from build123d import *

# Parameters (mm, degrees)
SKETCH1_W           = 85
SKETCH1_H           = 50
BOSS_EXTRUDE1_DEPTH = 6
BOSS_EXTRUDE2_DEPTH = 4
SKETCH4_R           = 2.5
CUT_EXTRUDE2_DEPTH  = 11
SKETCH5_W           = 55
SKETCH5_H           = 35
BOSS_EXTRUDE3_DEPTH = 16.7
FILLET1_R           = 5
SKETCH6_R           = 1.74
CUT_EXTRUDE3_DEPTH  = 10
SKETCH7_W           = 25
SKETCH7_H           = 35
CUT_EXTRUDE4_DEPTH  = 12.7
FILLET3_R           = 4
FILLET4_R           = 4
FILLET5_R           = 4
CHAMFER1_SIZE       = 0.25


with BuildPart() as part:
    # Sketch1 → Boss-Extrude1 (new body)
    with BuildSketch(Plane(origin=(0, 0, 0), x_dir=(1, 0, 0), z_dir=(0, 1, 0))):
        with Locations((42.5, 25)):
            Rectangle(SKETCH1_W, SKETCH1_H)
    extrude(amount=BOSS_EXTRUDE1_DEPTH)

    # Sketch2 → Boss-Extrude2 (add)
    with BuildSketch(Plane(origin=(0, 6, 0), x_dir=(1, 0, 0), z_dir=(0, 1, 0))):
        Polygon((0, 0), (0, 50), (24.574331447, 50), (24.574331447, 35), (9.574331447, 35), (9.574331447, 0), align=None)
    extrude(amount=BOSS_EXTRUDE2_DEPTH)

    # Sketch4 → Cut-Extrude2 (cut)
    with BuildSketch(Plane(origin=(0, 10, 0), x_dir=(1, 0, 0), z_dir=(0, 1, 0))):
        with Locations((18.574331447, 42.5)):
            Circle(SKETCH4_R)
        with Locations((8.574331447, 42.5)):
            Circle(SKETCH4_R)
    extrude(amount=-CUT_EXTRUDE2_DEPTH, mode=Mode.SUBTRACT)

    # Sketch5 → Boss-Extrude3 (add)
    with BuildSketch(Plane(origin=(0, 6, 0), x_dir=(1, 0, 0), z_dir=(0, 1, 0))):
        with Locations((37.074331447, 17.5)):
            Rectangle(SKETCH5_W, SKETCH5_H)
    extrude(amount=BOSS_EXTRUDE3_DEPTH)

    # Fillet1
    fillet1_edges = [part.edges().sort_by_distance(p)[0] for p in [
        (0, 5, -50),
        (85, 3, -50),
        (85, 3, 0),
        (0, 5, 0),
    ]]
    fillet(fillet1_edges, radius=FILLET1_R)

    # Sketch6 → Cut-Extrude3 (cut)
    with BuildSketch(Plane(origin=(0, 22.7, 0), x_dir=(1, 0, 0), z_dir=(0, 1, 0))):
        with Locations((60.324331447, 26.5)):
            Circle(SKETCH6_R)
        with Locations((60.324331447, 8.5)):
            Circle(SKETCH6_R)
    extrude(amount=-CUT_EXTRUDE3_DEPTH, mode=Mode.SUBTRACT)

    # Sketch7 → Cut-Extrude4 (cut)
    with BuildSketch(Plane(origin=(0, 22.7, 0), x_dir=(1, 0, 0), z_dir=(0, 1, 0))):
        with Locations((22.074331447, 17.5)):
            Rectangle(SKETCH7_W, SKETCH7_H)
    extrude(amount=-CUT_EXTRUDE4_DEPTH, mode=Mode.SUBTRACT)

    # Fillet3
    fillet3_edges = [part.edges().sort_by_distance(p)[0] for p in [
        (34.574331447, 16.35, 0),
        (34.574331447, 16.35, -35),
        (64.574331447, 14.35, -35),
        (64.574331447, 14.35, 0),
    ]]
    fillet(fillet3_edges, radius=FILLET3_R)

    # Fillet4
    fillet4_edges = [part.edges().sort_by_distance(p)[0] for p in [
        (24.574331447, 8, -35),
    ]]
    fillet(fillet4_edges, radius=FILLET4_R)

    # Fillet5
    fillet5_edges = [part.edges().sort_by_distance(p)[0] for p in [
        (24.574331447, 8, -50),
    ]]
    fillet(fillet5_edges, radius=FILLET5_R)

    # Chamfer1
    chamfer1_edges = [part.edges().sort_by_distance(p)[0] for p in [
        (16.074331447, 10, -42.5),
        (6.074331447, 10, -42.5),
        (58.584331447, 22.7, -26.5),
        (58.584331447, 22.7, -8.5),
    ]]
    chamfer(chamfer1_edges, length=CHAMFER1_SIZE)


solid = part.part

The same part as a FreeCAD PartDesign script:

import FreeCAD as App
import Part
import Sketcher
from FreeCAD import Vector


def edges_at(feature, points):
    """Names of the edges that pass closest to the given points."""
    edges = feature.Shape.Edges
    near = lambda p: min(range(len(edges)), key=lambda i: edges[i].distToShape(Part.Vertex(*p))[0])
    return sorted({f"Edge{near(p) + 1}" for p in points})


def add_polygon(sketch, points):
    """Adds a closed chain of lines whose ends are joined by coincident constraints."""
    first, n = sketch.GeometryCount, len(points)
    for a, b in zip(points, points[1:] + points[:1]):
        sketch.addGeometry(Part.LineSegment(App.Vector(*a, 0), App.Vector(*b, 0)), False)
    for i in range(n):
        sketch.addConstraint(Sketcher.Constraint("Coincident", first + i, 2, first + (i + 1) % n, 1))

doc = App.newDocument("Part")
body = doc.addObject("PartDesign::Body", "Body")

# Sketch on XZ plane
sketch1 = body.newObject("Sketcher::SketchObject", "Sketch")
sketch1.AttachmentSupport = (doc.getObject("XZ_Plane"), [""])
sketch1.MapMode = "FlatFace"
add_polygon(sketch1, [(0, -50), (0, 0), (85, 0), (85, -50)])  # lines 0-3
sketch1.addConstraint([
    Sketcher.Constraint("Vertical", 0),
    Sketcher.Constraint("Horizontal", 1),
    Sketcher.Constraint("Vertical", 2),
    Sketcher.Constraint("Horizontal", 3),
    Sketcher.Constraint("Coincident", 0, 2, -1, 1),
    Sketcher.Constraint("DistanceX", 1, 1, 1, 2, 85.0),
    Sketcher.Constraint("DistanceY", 0, 1, 0, 2, 50.0),
])
pad1 = body.newObject("PartDesign::Pad", "Pad")
pad1.Profile = sketch1
pad1.Length = 6
pad1.Reversed = True

# Sketch on XZ plane
sketch2 = body.newObject("Sketcher::SketchObject", "Sketch001")
sketch2.AttachmentSupport = (doc.getObject("XZ_Plane"), [""])
sketch2.MapMode = "FlatFace"
sketch2.AttachmentOffset = App.Placement(Vector(0, 0, -6), App.Rotation())
add_polygon(sketch2, [(0, -50), (0, 0), (9.574331, 0), (9.574331, -35), (24.574331, -35), (24.574331, -50)])  # lines 0-5
sketch2.addConstraint([
    Sketcher.Constraint("Vertical", 0),
    Sketcher.Constraint("Horizontal", 1),
    Sketcher.Constraint("Vertical", 2),
    Sketcher.Constraint("Horizontal", 3),
    Sketcher.Constraint("Vertical", 4),
    Sketcher.Constraint("Horizontal", 5),
    Sketcher.Constraint("Coincident", 0, 2, -1, 1),
    Sketcher.Constraint("Equal", 3, 4),
    Sketcher.Constraint("DistanceX", 3, 1, 3, 2, 15.0),
    Sketcher.Constraint("DistanceY", 0, 1, 0, 2, 50.0),
    Sketcher.Constraint("DistanceX", 1, 1, 1, 2, 9.574331),
])
pad2 = body.newObject("PartDesign::Pad", "Pad001")
pad2.Profile = sketch2
pad2.Length = 4
pad2.Reversed = True

# Sketch on XZ plane
sketch3 = body.newObject("Sketcher::SketchObject", "Sketch002")
sketch3.AttachmentSupport = (doc.getObject("XZ_Plane"), [""])
sketch3.MapMode = "FlatFace"
sketch3.AttachmentOffset = App.Placement(Vector(0, 0, -10), App.Rotation())
sketch3.addGeometry([
    Part.Circle(Vector(18.574331, -42.5, 0), Vector(0, 0, 1), 2.5),
    Part.Circle(Vector(8.574331, -42.5, 0), Vector(0, 0, 1), 2.5),
], False)
sketch3.addConstraint([
    Sketcher.Constraint("Equal", 0, 1),
    Sketcher.Constraint("Horizontal", 0, 3, 1, 3),
    Sketcher.Constraint("Diameter", 0, 5.0),
    Sketcher.Constraint("DistanceX", 1, 3, 0, 3, 10.0),
    Sketcher.Constraint("DistanceY", 0, 3, -1, 1, 42.5),
    Sketcher.Constraint("DistanceX", -1, 1, 0, 3, 18.574331),
])
pocket1 = body.newObject("PartDesign::Pocket", "Pocket")
pocket1.Profile = sketch3
pocket1.Length = 11
pocket1.Reversed = True

# Sketch on XZ plane
sketch4 = body.newObject("Sketcher::SketchObject", "Sketch003")
sketch4.AttachmentSupport = (doc.getObject("XZ_Plane"), [""])
sketch4.MapMode = "FlatFace"
sketch4.AttachmentOffset = App.Placement(Vector(0, 0, -6), App.Rotation())
add_polygon(sketch4, [(9.574331, -35), (9.574331, 0), (64.574331, 0), (64.574331, -35)])  # lines 0-3
sketch4.addConstraint([
    Sketcher.Constraint("Vertical", 0),
    Sketcher.Constraint("Horizontal", 1),
    Sketcher.Constraint("Vertical", 2),
    Sketcher.Constraint("Horizontal", 3),
    Sketcher.Constraint("PointOnObject", 0, 2, -1),
    Sketcher.Constraint("DistanceX", 1, 1, 1, 2, 55.0),
    Sketcher.Constraint("DistanceY", 0, 1, 0, 2, 35.0),
    Sketcher.Constraint("DistanceX", -1, 1, 0, 2, 9.574331),
])
pad3 = body.newObject("PartDesign::Pad", "Pad002")
pad3.Profile = sketch4
pad3.Length = 16.7
pad3.Reversed = True
doc.recompute()

fillet = body.newObject("PartDesign::Fillet", "Fillet")
fillet.Base = (pad3, edges_at(pad3, [
    (0, 5, -50),
    (85, 3, -50),
    (85, 3, 0),
    (0, 5, 0),
]))
fillet.Radius = 5

# Sketch on XZ plane
sketch5 = body.newObject("Sketcher::SketchObject", "Sketch004")
sketch5.AttachmentSupport = (doc.getObject("XZ_Plane"), [""])
sketch5.MapMode = "FlatFace"
sketch5.AttachmentOffset = App.Placement(Vector(0, 0, -22.7), App.Rotation())
sketch5.addGeometry([
    Part.Circle(Vector(60.324331, -26.5, 0), Vector(0, 0, 1), 1.74),
    Part.Circle(Vector(60.324331, -8.5, 0), Vector(0, 0, 1), 1.74),
], False)
sketch5.addConstraint([
    Sketcher.Constraint("Equal", 0, 1),
    Sketcher.Constraint("Vertical", 0, 3, 1, 3),
    Sketcher.Constraint("Diameter", 0, 3.48),
    Sketcher.Constraint("DistanceY", 0, 3, 1, 3, 18.0),
    Sketcher.Constraint("DistanceY", 0, 3, -1, 1, 26.5),
    Sketcher.Constraint("DistanceX", -1, 1, 0, 3, 60.324331),
])
pocket2 = body.newObject("PartDesign::Pocket", "Pocket001")
pocket2.Profile = sketch5
pocket2.Length = 10
pocket2.Reversed = True

# Sketch on XZ plane
sketch6 = body.newObject("Sketcher::SketchObject", "Sketch005")
sketch6.AttachmentSupport = (doc.getObject("XZ_Plane"), [""])
sketch6.MapMode = "FlatFace"
sketch6.AttachmentOffset = App.Placement(Vector(0, 0, -22.7), App.Rotation())
add_polygon(sketch6, [(9.574331, -35), (9.574331, 0), (34.574331, 0), (34.574331, -35)])  # lines 0-3
sketch6.addConstraint([
    Sketcher.Constraint("Vertical", 0),
    Sketcher.Constraint("Horizontal", 1),
    Sketcher.Constraint("Vertical", 2),
    Sketcher.Constraint("Horizontal", 3),
    Sketcher.Constraint("PointOnObject", 0, 2, -1),
    Sketcher.Constraint("DistanceX", 1, 1, 1, 2, 25.0),
    Sketcher.Constraint("DistanceY", 0, 1, 0, 2, 35.0),
    Sketcher.Constraint("DistanceX", -1, 1, 0, 2, 9.574331),
])
pocket3 = body.newObject("PartDesign::Pocket", "Pocket002")
pocket3.Profile = sketch6
pocket3.Length = 12.7
pocket3.Reversed = True
doc.recompute()

fillet2 = body.newObject("PartDesign::Fillet", "Fillet001")
fillet2.Base = (pocket3, edges_at(pocket3, [
    (34.574, 16.35, 0),
    (34.574, 16.35, -35),
    (64.574, 14.35, -35),
    (64.574, 14.35, 0),
]))
fillet2.Radius = 4
doc.recompute()

fillet3 = body.newObject("PartDesign::Fillet", "Fillet002")
fillet3.Base = (fillet2, edges_at(fillet2, [(24.574, 8, -35)]))
fillet3.Radius = 4
doc.recompute()

fillet4 = body.newObject("PartDesign::Fillet", "Fillet003")
fillet4.Base = (fillet3, edges_at(fillet3, [(24.574, 8, -50)]))
fillet4.Radius = 4
doc.recompute()

chamfer = body.newObject("PartDesign::Chamfer", "Chamfer")
chamfer.Base = (fillet4, edges_at(fillet4, [
    (16.074, 10, -42.5),
    (6.074, 10, -42.5),
    (58.584, 22.7, -26.5),
    (58.584, 22.7, -8.5),
]))
chamfer.Size = 0.25

doc.recompute()
